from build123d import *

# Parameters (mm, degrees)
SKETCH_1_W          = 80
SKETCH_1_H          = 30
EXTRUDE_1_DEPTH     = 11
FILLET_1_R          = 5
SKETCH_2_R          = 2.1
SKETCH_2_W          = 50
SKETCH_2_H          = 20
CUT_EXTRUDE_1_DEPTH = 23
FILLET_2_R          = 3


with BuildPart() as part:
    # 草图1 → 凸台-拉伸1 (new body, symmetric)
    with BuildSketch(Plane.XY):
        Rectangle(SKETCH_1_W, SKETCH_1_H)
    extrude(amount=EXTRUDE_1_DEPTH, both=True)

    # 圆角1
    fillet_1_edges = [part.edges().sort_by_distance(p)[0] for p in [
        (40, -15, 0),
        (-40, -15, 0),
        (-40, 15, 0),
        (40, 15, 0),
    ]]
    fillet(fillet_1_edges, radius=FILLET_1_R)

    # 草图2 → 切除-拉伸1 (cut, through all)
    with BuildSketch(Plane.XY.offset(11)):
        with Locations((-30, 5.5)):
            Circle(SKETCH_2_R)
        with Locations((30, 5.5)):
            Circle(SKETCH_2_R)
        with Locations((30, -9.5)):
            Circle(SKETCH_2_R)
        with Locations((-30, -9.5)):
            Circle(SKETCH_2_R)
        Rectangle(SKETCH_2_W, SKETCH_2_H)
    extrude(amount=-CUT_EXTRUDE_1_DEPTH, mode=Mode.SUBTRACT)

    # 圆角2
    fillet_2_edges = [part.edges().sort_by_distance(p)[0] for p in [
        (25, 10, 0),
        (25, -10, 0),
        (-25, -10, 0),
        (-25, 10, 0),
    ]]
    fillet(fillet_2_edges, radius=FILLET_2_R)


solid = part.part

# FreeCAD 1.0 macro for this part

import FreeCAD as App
import Part
import Sketcher

V = App.Vector


def edges_at(feature, points):
    """Names of the edges that pass closest to the given points."""
    edges = feature.Shape.Edges
    near = lambda p: min(range(len(edges)), key=lambda i: edges[i].distToShape(Part.Vertex(*p))[0])
    return sorted({f"Edge{near(p) + 1}" for p in points})

doc = App.newDocument("Part")
body = doc.addObject("PartDesign::Body", "Body")

# Sketch on XY plane
sketch1 = body.newObject("Sketcher::SketchObject", "Sketch")
sketch1.AttachmentSupport = (doc.getObject("XY_Plane"), [""])
sketch1.MapMode = "FlatFace"
sketch1.addGeometry([
    Part.LineSegment(V(-40, 15, 0), V(-40, -15, 0)),
    Part.LineSegment(V(-40, -15, 0), V(40, -15, 0)),
    Part.LineSegment(V(40, -15, 0), V(40, 15, 0)),
    Part.LineSegment(V(40, 15, 0), V(-40, 15, 0)),
], False)
sketch1.addConstraint([
    Sketcher.Constraint("Coincident", 0, 2, 1, 1),
    Sketcher.Constraint("Coincident", 1, 2, 2, 1),
    Sketcher.Constraint("Coincident", 2, 2, 3, 1),
    Sketcher.Constraint("Coincident", 3, 2, 0, 1),
    Sketcher.Constraint("Vertical", 0),
    Sketcher.Constraint("Horizontal", 1),
    Sketcher.Constraint("Vertical", 2),
    Sketcher.Constraint("Horizontal", 3),
    Sketcher.Constraint("Symmetric", 0, 2, 2, 2, -1, 1),
    Sketcher.Constraint("DistanceX", 1, 1, 1, 2, 80.0),
    Sketcher.Constraint("DistanceY", 0, 2, 0, 1, 30.0),
])
pad1 = body.newObject("PartDesign::Pad", "Pad")
pad1.Profile = sketch1
pad1.Length = 22
pad1.Midplane = True
doc.recompute()

fillet = body.newObject("PartDesign::Fillet", "Fillet")
fillet.Base = (pad1, edges_at(pad1, [
    (40, -15, 0),
    (-40, -15, 0),
    (-40, 15, 0),
    (40, 15, 0),
]))
fillet.Radius = 5

# Sketch on XY plane
sketch2 = body.newObject("Sketcher::SketchObject", "Sketch001")
sketch2.AttachmentSupport = (doc.getObject("XY_Plane"), [""])
sketch2.MapMode = "FlatFace"
sketch2.AttachmentOffset = App.Placement(V(0, 0, 11), App.Rotation())
sketch2.addGeometry([
    Part.Circle(V(-30, 5.5, 0), V(0, 0, 1), 2.1),  # 0
    Part.Circle(V(30, 5.5, 0), V(0, 0, 1), 2.1),  # 1
    Part.Circle(V(30, -9.5, 0), V(0, 0, 1), 2.1),  # 2
    Part.Circle(V(-30, -9.5, 0), V(0, 0, 1), 2.1),  # 3
    Part.LineSegment(V(-25, 10, 0), V(-25, -10, 0)),  # 4
    Part.LineSegment(V(-25, -10, 0), V(25, -10, 0)),  # 5
    Part.LineSegment(V(25, -10, 0), V(25, 10, 0)),  # 6
    Part.LineSegment(V(25, 10, 0), V(-25, 10, 0)),  # 7
], False)
sketch2.addConstraint([
    Sketcher.Constraint("Coincident", 4, 2, 5, 1),
    Sketcher.Constraint("Coincident", 5, 2, 6, 1),
    Sketcher.Constraint("Coincident", 6, 2, 7, 1),
    Sketcher.Constraint("Coincident", 7, 2, 4, 1),
    Sketcher.Constraint("Vertical", 4),
    Sketcher.Constraint("Horizontal", 5),
    Sketcher.Constraint("Vertical", 6),
    Sketcher.Constraint("Horizontal", 7),
    Sketcher.Constraint("Equal", 0, 1),
    Sketcher.Constraint("Equal", 1, 2),
    Sketcher.Constraint("Equal", 2, 3),
    Sketcher.Constraint("Symmetric", 4, 2, 6, 2, -1, 1),
    Sketcher.Constraint("Symmetric", 0, 3, 1, 3, -2),
    Sketcher.Constraint("Symmetric", 2, 3, 3, 3, -2),
    Sketcher.Constraint("Vertical", 1, 3, 2, 3),
    Sketcher.Constraint("Diameter", 0, 4.2),
    Sketcher.Constraint("DistanceX", 5, 1, 5, 2, 50.0),
    Sketcher.Constraint("DistanceY", 4, 2, 4, 1, 20.0),
    Sketcher.Constraint("DistanceX", 0, 3, -1, 1, 30.0),
    Sketcher.Constraint("DistanceY", 2, 3, 1, 3, 15.0),
    Sketcher.Constraint("DistanceY", -1, 1, 0, 3, 5.5),
])
pocket1 = body.newObject("PartDesign::Pocket", "Pocket")
pocket1.Profile = sketch2
pocket1.Type = "ThroughAll"
doc.recompute()

fillet2 = body.newObject("PartDesign::Fillet", "Fillet001")
fillet2.Base = (pocket1, edges_at(pocket1, [
    (25, 10, 0),
    (25, -10, 0),
    (-25, -10, 0),
    (-25, 10, 0),
]))
fillet2.Radius = 3

doc.recompute()
